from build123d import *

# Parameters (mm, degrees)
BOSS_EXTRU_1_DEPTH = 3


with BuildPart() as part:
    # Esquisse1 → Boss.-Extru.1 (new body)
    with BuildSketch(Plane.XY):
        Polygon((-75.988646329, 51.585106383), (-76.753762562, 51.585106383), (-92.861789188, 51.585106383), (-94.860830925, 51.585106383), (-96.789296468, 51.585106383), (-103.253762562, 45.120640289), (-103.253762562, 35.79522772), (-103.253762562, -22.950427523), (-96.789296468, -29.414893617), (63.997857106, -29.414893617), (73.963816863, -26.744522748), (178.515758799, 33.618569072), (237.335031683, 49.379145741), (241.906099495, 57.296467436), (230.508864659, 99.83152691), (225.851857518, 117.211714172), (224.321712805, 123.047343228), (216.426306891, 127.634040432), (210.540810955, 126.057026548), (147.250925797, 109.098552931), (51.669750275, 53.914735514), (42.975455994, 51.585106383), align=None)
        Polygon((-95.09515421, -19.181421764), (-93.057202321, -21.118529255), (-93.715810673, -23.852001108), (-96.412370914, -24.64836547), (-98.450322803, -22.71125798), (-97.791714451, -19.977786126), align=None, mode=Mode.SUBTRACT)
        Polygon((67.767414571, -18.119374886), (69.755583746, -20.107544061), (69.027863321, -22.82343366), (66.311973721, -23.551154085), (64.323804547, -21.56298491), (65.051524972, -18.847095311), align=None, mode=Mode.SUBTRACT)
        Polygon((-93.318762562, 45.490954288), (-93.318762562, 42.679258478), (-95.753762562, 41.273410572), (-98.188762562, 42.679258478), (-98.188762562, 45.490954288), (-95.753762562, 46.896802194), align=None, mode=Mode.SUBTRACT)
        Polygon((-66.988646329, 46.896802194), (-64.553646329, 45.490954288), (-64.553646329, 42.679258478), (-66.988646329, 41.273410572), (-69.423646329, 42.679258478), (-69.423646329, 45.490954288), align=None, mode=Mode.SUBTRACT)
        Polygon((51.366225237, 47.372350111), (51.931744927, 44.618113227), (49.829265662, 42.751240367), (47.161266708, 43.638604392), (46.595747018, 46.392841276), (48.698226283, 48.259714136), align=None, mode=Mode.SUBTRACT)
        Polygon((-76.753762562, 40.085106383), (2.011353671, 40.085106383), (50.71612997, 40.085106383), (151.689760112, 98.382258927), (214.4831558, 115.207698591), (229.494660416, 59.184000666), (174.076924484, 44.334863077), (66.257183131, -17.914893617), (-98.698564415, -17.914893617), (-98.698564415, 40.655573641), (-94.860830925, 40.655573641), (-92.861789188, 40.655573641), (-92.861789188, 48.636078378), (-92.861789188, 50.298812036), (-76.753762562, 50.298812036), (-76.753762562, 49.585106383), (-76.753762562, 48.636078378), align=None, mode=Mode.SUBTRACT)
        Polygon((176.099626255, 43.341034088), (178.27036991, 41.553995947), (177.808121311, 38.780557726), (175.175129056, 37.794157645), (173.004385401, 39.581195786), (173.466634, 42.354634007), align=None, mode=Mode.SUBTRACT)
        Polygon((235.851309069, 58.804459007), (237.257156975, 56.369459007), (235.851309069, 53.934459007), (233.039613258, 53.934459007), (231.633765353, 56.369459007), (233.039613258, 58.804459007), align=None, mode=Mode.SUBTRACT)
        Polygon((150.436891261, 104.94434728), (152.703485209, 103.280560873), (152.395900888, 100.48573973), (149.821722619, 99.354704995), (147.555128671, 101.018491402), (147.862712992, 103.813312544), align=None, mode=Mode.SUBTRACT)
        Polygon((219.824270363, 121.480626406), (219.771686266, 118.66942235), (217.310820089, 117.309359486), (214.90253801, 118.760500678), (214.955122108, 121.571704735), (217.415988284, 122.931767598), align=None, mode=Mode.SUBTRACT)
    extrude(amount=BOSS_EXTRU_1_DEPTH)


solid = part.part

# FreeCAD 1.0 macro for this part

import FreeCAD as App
import Part
import Sketcher
from FreeCAD import Vector


def add_polygon(sketch, points):
    """Adds a closed chain of lines whose ends are joined by coincident constraints."""
    first, n = sketch.GeometryCount, len(points)
    for a, b in zip(points, points[1:] + points[:1]):
        sketch.addGeometry(Part.LineSegment(App.Vector(*a, 0), App.Vector(*b, 0)), False)
    for i in range(n):
        sketch.addConstraint(Sketcher.Constraint("Coincident", first + i, 2, first + (i + 1) % n, 1))

doc = App.newDocument("Part")
body = doc.addObject("PartDesign::Body", "Body")

# Sketch on XY plane
sketch1 = body.newObject("Sketcher::SketchObject", "Sketch")
sketch1.AttachmentSupport = (doc.getObject("XY_Plane"), [""])
sketch1.MapMode = "FlatFace"
add_polygon(sketch1, [(-96.789296, 51.585106), (-103.253763, 45.12064), (-103.253763, -22.950428), (-96.789296, -29.414894), (63.997857, -29.414894), (73.963817, -26.744523), (178.515759, 33.618569), (237.335032, 49.379146), (241.906099, 57.296467), (230.508865, 99.831527), (225.851858, 117.211714), (224.321713, 123.047343), (216.426307, 127.63404), (210.540811, 126.057027), (147.250926, 109.098553), (51.66975, 53.914736), (42.975456, 51.585106)])  # lines 0-16
add_polygon(sketch1, [(-97.791714, -19.977786), (-95.095154, -19.181422), (-93.057202, -21.118529), (-93.715811, -23.852001), (-96.412371, -24.648365), (-98.450323, -22.711258)])  # lines 17-22
add_polygon(sketch1, [(65.051525, -18.847095), (67.767415, -18.119375), (69.755584, -20.107544), (69.027863, -22.823434), (66.311974, -23.551154), (64.323805, -21.562985)])  # lines 23-28
add_polygon(sketch1, [(-95.753763, 46.896802), (-93.318763, 45.490954), (-93.318763, 42.679258), (-95.753763, 41.273411), (-98.188763, 42.679258), (-98.188763, 45.490954)])  # lines 29-34
add_polygon(sketch1, [(-69.423646, 45.490954), (-66.988646, 46.896802), (-64.553646, 45.490954), (-64.553646, 42.679258), (-66.988646, 41.273411), (-69.423646, 42.679258)])  # lines 35-40
add_polygon(sketch1, [(48.698226, 48.259714), (51.366225, 47.37235), (51.931745, 44.618113), (49.829266, 42.75124), (47.161267, 43.638604), (46.595747, 46.392841)])  # lines 41-46
add_polygon(sketch1, [(-76.753763, 50.298812), (-76.753763, 40.085106), (50.71613, 40.085106), (151.68976, 98.382259), (214.483156, 115.207699), (229.49466, 59.184001), (174.076924, 44.334863), (66.257183, -17.914894), (-98.698564, -17.914894), (-98.698564, 40.655574), (-92.861789, 40.655574), (-92.861789, 50.298812)])  # lines 47-58
add_polygon(sketch1, [(173.466634, 42.354634), (176.099626, 43.341034), (178.27037, 41.553996), (177.808121, 38.780558), (175.175129, 37.794158), (173.004385, 39.581196)])  # lines 59-64
add_polygon(sketch1, [(233.039613, 58.804459), (235.851309, 58.804459), (237.257157, 56.369459), (235.851309, 53.934459), (233.039613, 53.934459), (231.633765, 56.369459)])  # lines 65-70
add_polygon(sketch1, [(147.862713, 103.813313), (150.436891, 104.944347), (152.703485, 103.280561), (152.395901, 100.48574), (149.821723, 99.354705), (147.555129, 101.018491)])  # lines 71-76
add_polygon(sketch1, [(217.415988, 122.931768), (219.82427, 121.480626), (219.771686, 118.669422), (217.31082, 117.309359), (214.902538, 118.760501), (214.955122, 121.571705)])  # lines 77-82
sketch1.addConstraint([
    Sketcher.Constraint("Vertical", 1),
    Sketcher.Constraint("Horizontal", 3),
    Sketcher.Constraint("Horizontal", 16),
    Sketcher.Constraint("Vertical", 30),
    Sketcher.Constraint("Vertical", 33),
    Sketcher.Constraint("Vertical", 37),
    Sketcher.Constraint("Vertical", 40),
    Sketcher.Constraint("Vertical", 47),
    Sketcher.Constraint("Horizontal", 48),
    Sketcher.Constraint("Horizontal", 54),
    Sketcher.Constraint("Vertical", 55),
    Sketcher.Constraint("Horizontal", 56),
    Sketcher.Constraint("Vertical", 57),
    Sketcher.Constraint("Horizontal", 58),
    Sketcher.Constraint("Horizontal", 65),
    Sketcher.Constraint("Horizontal", 68),
    Sketcher.Constraint("Distance", 51, 58.0),
    Sketcher.Constraint("DistanceY", 19, 2, -1, 1, 23.852001),
    Sketcher.Constraint("DistanceY", -1, 1, 51, 2, 59.184001),
    Sketcher.Constraint("DistanceY", 57, 1, 57, 2, 9.643238),
    Sketcher.Constraint("DistanceX", -1, 1, 7, 2, 241.906099),
    Sketcher.Constraint("DistanceY", -1, 1, 50, 2, 115.207699),
    Sketcher.Constraint("DistanceX", -1, 1, 73, 2, 152.395901),
    Sketcher.Constraint("DistanceY", -1, 1, 80, 2, 118.760501),
    Sketcher.Constraint("Distance", 4, 10.317521),
    Sketcher.Constraint("Distance", 13, 65.522511),
    Sketcher.Constraint("Distance", 52, 57.372662),
    Sketcher.Constraint("DistanceX", 3, 1, 3, 2, 160.787154),
    Sketcher.Constraint("DistanceX", 16, 2, 16, 1, 139.764752),
    Sketcher.Constraint("DistanceX", 48, 1, 48, 2, 127.469893),
    Sketcher.Constraint("DistanceX", 54, 2, 54, 1, 164.955748),
    Sketcher.Constraint("DistanceX", 56, 1, 56, 2, 5.836775),
    Sketcher.Constraint("DistanceX", 58, 1, 58, 2, 16.108027),
    Sketcher.Constraint("DistanceX", 65, 1, 65, 2, 2.811696),
    Sketcher.Constraint("DistanceX", 68, 2, 68, 1, 2.811696),
    Sketcher.Constraint("DistanceY", 1, 2, 1, 1, 68.071068),
    Sketcher.Constraint("DistanceY", 30, 2, 30, 1, 2.811696),
    Sketcher.Constraint("DistanceY", 33, 1, 33, 2, 2.811696),
    Sketcher.Constraint("DistanceY", 37, 2, 37, 1, 2.811696),
    Sketcher.Constraint("DistanceY", 40, 1, 40, 2, 2.811696),
    Sketcher.Constraint("DistanceY", 47, 2, 47, 1, 10.213706),
    Sketcher.Constraint("DistanceY", 55, 1, 55, 2, 58.570467),
    Sketcher.Constraint("DistanceY", -1, 1, 0, 2, 45.12064),
    Sketcher.Constraint("DistanceX", -1, 1, 5, 2, 178.515759),
    Sketcher.Constraint("DistanceY", -1, 1, 5, 2, 33.618569),
    Sketcher.Constraint("DistanceX", -1, 1, 6, 2, 237.335032),
    Sketcher.Constraint("DistanceY", -1, 1, 11, 2, 127.63404),
    Sketcher.Constraint("DistanceX", -1, 1, 12, 2, 210.540811),
    Sketcher.Constraint("DistanceX", -1, 1, 14, 2, 51.66975),
    Sketcher.Constraint("DistanceY", 17, 2, -1, 1, 19.181422),
    Sketcher.Constraint("DistanceY", 18, 2, -1, 1, 21.118529),
    Sketcher.Constraint("DistanceX", 19, 2, -1, 1, 93.715811),
    Sketcher.Constraint("DistanceX", 20, 2, -1, 1, 96.412371),
    Sketcher.Constraint("DistanceY", -1, 1, 30, 2, 42.679258),
    Sketcher.Constraint("DistanceY", -1, 1, 31, 2, 41.273411),
    Sketcher.Constraint("DistanceY", -1, 1, 32, 2, 42.679258),
    Sketcher.Constraint("DistanceY", -1, 1, 37, 2, 42.679258),
    Sketcher.Constraint("DistanceY", -1, 1, 38, 2, 41.273411),
    Sketcher.Constraint("DistanceY", -1, 1, 39, 2, 42.679258),
    Sketcher.Constraint("DistanceY", -1, 1, 41, 2, 47.37235),
    Sketcher.Constraint("DistanceY", -1, 1, 43, 2, 42.75124),
    Sketcher.Constraint("DistanceY", -1, 1, 45, 2, 46.392841),
    Sketcher.Constraint("DistanceX", -1, 1, 48, 2, 50.71613),
    Sketcher.Constraint("DistanceX", -1, 1, 49, 2, 151.68976),
    Sketcher.Constraint("DistanceY", -1, 1, 49, 2, 98.382259),
    Sketcher.Constraint("DistanceX", -1, 1, 51, 2, 229.49466),
    Sketcher.Constraint("DistanceX", -1, 1, 60, 2, 178.27037),
    Sketcher.Constraint("DistanceX", -1, 1, 61, 2, 177.808121),
    Sketcher.Constraint("DistanceX", -1, 1, 62, 2, 175.175129),
    Sketcher.Constraint("DistanceX", -1, 1, 65, 2, 235.851309),
    Sketcher.Constraint("DistanceY", -1, 1, 65, 2, 58.804459),
    Sketcher.Constraint("DistanceY", -1, 1, 66, 2, 56.369459),
    Sketcher.Constraint("DistanceX", -1, 1, 67, 2, 235.851309),
    Sketcher.Constraint("DistanceY", -1, 1, 67, 2, 53.934459),
    Sketcher.Constraint("DistanceY", -1, 1, 69, 2, 56.369459),
    Sketcher.Constraint("DistanceX", -1, 1, 71, 2, 150.436891),
    Sketcher.Constraint("DistanceY", -1, 1, 72, 2, 103.280561),
    Sketcher.Constraint("DistanceY", -1, 1, 73, 2, 100.48574),
    Sketcher.Constraint("DistanceX", -1, 1, 75, 2, 147.555129),
    Sketcher.Constraint("DistanceY", -1, 1, 75, 2, 101.018491),
    Sketcher.Constraint("DistanceX", -1, 1, 77, 2, 219.82427),
    Sketcher.Constraint("DistanceX", -1, 1, 79, 2, 217.31082),
    Sketcher.Constraint("DistanceY", -1, 1, 79, 2, 117.309359),
    Sketcher.Constraint("DistanceX", -1, 1, 80, 2, 214.902538),
    Sketcher.Constraint("DistanceX", -1, 1, 82, 2, 217.415988),
    Sketcher.Constraint("Distance", 0, 9.142136),
    Sketcher.Constraint("Distance", 2, 9.142136),
    Sketcher.Constraint("Distance", 5, 120.726184),
    Sketcher.Constraint("Distance", 6, 60.894192),
    Sketcher.Constraint("Distance", 7, 9.142136),
    Sketcher.Constraint("Distance", 8, 44.035534),
    Sketcher.Constraint("Distance", 9, 17.993294),
    Sketcher.Constraint("Distance", 10, 6.032902),
    Sketcher.Constraint("Distance", 11, 9.131004),
    Sketcher.Constraint("Distance", 12, 6.093114),
    Sketcher.Constraint("Distance", 14, 110.367635),
    Sketcher.Constraint("Distance", 15, 9.000996),
    Sketcher.Constraint("Distance", 17, 2.811696),
    Sketcher.Constraint("Distance", 18, 2.811696),
    Sketcher.Constraint("Distance", 19, 2.811696),
    Sketcher.Constraint("Distance", 20, 2.811696),
    Sketcher.Constraint("Distance", 21, 2.811696),
    Sketcher.Constraint("Distance", 22, 2.811696),
    Sketcher.Constraint("Distance", 23, 2.811696),
    Sketcher.Constraint("Distance", 24, 2.811696),
    Sketcher.Constraint("Distance", 25, 2.811696),
    Sketcher.Constraint("Distance", 26, 2.811696),
    Sketcher.Constraint("Distance", 27, 2.811696),
    Sketcher.Constraint("Distance", 28, 2.811696),
    Sketcher.Constraint("Distance", 29, 2.811696),
    Sketcher.Constraint("Distance", 31, 2.811696),
    Sketcher.Constraint("Distance", 32, 2.811696),
    Sketcher.Constraint("Distance", 34, 2.811696),
    Sketcher.Constraint("Distance", 35, 2.811696),
    Sketcher.Constraint("Distance", 36, 2.811696),
    Sketcher.Constraint("Distance", 38, 2.811696),
    Sketcher.Constraint("Distance", 39, 2.811696),
    Sketcher.Constraint("Distance", 41, 2.811696),
    Sketcher.Constraint("Distance", 42, 2.811696),
    Sketcher.Constraint("Distance", 43, 2.811696),
    Sketcher.Constraint("Distance", 44, 2.811696),
    Sketcher.Constraint("Distance", 45, 2.811696),
    Sketcher.Constraint("Distance", 46, 2.811696),
    Sketcher.Constraint("Distance", 49, 116.594305),
    Sketcher.Constraint("Distance", 53, 124.499513),
    Sketcher.Constraint("Distance", 59, 2.811696),
    Sketcher.Constraint("Distance", 60, 2.811696),
    Sketcher.Constraint("Distance", 61, 2.811696),
    Sketcher.Constraint("Distance", 62, 2.811696),
    Sketcher.Constraint("Distance", 63, 2.811696),
    Sketcher.Constraint("Distance", 64, 2.811696),
    Sketcher.Constraint("Distance", 66, 2.811696),
    Sketcher.Constraint("Distance", 69, 2.811696),
    Sketcher.Constraint("Distance", 71, 2.811696),
    Sketcher.Constraint("Distance", 72, 2.811696),
    Sketcher.Constraint("Distance", 73, 2.811696),
    Sketcher.Constraint("Distance", 74, 2.811696),
    Sketcher.Constraint("Distance", 75, 2.811696),
    Sketcher.Constraint("Distance", 76, 2.811696),
    Sketcher.Constraint("Distance", 77, 2.811696),
    Sketcher.Constraint("Distance", 78, 2.811696),
    Sketcher.Constraint("Distance", 79, 2.811696),
    Sketcher.Constraint("Distance", 81, 2.811696),
    Sketcher.Constraint("Distance", 82, 2.811696),
    Sketcher.Constraint("DistanceX", 0, 2, -1, 1, 103.253763),
    Sketcher.Constraint("DistanceX", 2, 2, -1, 1, 96.789296),
    Sketcher.Constraint("DistanceX", -1, 1, 8, 2, 230.508865),
    Sketcher.Constraint("DistanceX", -1, 1, 9, 2, 225.851858),
    Sketcher.Constraint("DistanceX", -1, 1, 10, 2, 224.321713),
    Sketcher.Constraint("DistanceX", -1, 1, 13, 2, 147.250926),
    Sketcher.Constraint("DistanceX", 21, 2, -1, 1, 98.450323),
    Sketcher.Constraint("DistanceX", -1, 1, 23, 2, 67.767415),
    Sketcher.Constraint("DistanceY", 23, 2, -1, 1, 18.119375),
    Sketcher.Constraint("DistanceX", -1, 1, 24, 2, 69.755584),
    Sketcher.Constraint("DistanceX", -1, 1, 25, 2, 69.027863),
    Sketcher.Constraint("DistanceX", -1, 1, 26, 2, 66.311974),
    Sketcher.Constraint("DistanceX", -1, 1, 27, 2, 64.323805),
    Sketcher.Constraint("DistanceX", 29, 2, -1, 1, 93.318763),
    Sketcher.Constraint("DistanceX", 35, 2, -1, 1, 66.988646),
    Sketcher.Constraint("DistanceX", -1, 1, 41, 2, 51.366225),
    Sketcher.Constraint("DistanceX", -1, 1, 42, 2, 51.931745),
    Sketcher.Constraint("DistanceX", -1, 1, 44, 2, 47.161267),
    Sketcher.Constraint("DistanceX", -1, 1, 59, 2, 176.099626),
    Sketcher.Constraint("DistanceY", -1, 1, 59, 2, 43.341034),
    Sketcher.Constraint("DistanceX", -1, 1, 63, 2, 173.004385),
    Sketcher.Constraint("DistanceY", -1, 1, 77, 2, 121.480626),
])
pad1 = body.newObject("PartDesign::Pad", "Pad")
pad1.Profile = sketch1
pad1.Length = 3

doc.recompute()
